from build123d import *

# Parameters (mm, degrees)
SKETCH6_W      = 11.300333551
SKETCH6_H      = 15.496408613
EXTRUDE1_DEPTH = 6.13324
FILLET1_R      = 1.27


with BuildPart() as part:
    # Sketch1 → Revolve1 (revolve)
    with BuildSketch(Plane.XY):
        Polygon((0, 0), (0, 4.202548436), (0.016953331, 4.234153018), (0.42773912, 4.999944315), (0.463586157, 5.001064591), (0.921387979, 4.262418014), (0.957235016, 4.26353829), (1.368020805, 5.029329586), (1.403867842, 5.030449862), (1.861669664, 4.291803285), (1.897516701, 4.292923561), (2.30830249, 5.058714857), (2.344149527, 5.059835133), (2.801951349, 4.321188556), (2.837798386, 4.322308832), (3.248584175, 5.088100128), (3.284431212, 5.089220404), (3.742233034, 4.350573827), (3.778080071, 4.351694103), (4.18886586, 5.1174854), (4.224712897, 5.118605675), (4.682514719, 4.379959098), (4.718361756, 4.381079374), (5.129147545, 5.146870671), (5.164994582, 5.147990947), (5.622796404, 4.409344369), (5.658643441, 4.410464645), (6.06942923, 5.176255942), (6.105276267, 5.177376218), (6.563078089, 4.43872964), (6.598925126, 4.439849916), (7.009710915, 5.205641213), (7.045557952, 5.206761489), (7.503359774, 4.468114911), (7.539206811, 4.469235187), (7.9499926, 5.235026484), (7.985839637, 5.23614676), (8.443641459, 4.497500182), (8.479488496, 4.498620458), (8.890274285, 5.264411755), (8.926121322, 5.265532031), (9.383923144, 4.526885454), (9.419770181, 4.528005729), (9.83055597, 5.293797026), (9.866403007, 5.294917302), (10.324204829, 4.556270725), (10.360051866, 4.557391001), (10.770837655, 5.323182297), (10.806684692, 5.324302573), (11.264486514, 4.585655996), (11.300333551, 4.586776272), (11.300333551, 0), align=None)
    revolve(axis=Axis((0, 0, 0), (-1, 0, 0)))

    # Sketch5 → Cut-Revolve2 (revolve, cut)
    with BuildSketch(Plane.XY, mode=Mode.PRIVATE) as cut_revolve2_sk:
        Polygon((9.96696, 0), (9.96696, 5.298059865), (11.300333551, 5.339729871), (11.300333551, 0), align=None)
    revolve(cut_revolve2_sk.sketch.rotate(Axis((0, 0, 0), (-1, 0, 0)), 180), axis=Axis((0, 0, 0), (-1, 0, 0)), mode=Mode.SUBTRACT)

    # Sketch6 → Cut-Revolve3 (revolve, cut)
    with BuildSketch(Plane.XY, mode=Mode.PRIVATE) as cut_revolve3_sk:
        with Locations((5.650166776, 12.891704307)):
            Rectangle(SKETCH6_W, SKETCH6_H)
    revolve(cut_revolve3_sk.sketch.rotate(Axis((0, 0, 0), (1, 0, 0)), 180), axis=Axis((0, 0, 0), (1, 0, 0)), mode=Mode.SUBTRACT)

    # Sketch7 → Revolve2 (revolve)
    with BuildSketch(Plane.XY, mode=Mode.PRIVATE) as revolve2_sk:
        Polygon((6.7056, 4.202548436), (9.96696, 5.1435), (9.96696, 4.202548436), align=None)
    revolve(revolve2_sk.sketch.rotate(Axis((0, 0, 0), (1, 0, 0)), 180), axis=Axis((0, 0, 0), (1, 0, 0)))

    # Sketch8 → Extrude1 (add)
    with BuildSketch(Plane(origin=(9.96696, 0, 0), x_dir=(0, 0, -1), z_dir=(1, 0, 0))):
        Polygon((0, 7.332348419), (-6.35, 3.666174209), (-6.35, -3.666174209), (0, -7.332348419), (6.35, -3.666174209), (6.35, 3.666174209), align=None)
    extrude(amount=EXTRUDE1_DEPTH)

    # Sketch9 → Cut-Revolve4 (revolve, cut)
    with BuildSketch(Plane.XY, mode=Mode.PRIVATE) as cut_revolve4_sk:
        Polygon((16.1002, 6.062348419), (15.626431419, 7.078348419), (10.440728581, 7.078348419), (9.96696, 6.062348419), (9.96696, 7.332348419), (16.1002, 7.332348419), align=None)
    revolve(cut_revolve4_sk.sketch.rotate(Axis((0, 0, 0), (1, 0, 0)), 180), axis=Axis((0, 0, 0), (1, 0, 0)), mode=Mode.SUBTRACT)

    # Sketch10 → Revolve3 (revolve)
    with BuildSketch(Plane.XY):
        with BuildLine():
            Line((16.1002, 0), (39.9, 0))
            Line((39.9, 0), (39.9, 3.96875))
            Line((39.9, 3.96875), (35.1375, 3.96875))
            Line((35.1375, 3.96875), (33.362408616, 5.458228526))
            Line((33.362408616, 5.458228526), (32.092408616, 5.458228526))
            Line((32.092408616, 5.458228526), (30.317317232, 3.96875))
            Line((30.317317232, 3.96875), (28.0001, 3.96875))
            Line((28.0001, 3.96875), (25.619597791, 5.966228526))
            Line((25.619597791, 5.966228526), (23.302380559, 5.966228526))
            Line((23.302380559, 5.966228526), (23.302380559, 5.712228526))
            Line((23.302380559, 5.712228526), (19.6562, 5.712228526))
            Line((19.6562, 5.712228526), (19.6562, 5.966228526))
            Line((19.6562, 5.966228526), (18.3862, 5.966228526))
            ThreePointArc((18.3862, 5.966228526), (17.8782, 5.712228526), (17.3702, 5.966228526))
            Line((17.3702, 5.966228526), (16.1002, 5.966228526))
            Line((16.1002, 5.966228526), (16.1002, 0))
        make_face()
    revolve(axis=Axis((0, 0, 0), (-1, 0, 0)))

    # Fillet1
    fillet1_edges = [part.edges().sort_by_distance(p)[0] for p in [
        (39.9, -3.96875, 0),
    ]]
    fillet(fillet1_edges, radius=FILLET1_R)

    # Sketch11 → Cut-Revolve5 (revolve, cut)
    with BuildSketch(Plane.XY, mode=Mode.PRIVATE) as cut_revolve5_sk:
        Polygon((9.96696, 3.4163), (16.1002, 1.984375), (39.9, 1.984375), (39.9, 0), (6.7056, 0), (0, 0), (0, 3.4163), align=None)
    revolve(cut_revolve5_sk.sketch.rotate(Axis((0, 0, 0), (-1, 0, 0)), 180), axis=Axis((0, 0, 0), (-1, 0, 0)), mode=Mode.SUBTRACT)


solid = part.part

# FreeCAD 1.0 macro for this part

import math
import FreeCAD as App
import Part
import Sketcher

V = App.Vector
Q = App.Units.Quantity


def edges_at(feature, points):
    """Names of the edges that pass closest to the given points."""
    edges = feature.Shape.Edges
    near = lambda p: min(range(len(edges)), key=lambda i: edges[i].distToShape(Part.Vertex(*p))[0])
    return sorted({f"Edge{near(p) + 1}" for p in points})


def add_polygon(sketch, points):
    """Adds a closed chain of lines whose ends are joined by coincident constraints."""
    first, n = sketch.GeometryCount, len(points)
    for a, b in zip(points, points[1:] + points[:1]):
        sketch.addGeometry(Part.LineSegment(App.Vector(*a, 0), App.Vector(*b, 0)), False)
    for i in range(n):
        sketch.addConstraint(Sketcher.Constraint("Coincident", first + i, 2, first + (i + 1) % n, 1))

doc = App.newDocument("Part")
body = doc.addObject("PartDesign::Body", "Body")

# Sketch on XY plane
sketch1 = body.newObject("Sketcher::SketchObject", "Sketch")
sketch1.AttachmentSupport = (doc.getObject("XY_Plane"), [""])
sketch1.MapMode = "FlatFace"
add_polygon(sketch1, [(0, 4.202548), (0, 0), (11.300334, 0), (11.300334, 4.586776), (11.264487, 4.585656), (10.806685, 5.324303), (10.770838, 5.323182), (10.360052, 4.557391), (10.324205, 4.556271), (9.866403, 5.294917), (9.830556, 5.293797), (9.41977, 4.528006), (9.383923, 4.526885), (8.926121, 5.265532), (8.890274, 5.264412), (8.479488, 4.49862), (8.443641, 4.4975), (7.98584, 5.236147), (7.949993, 5.235026), (7.539207, 4.469235), (7.50336, 4.468115), (7.045558, 5.206761), (7.009711, 5.205641), (6.598925, 4.43985), (6.563078, 4.43873), (6.105276, 5.177376), (6.069429, 5.176256), (5.658643, 4.410465), (5.622796, 4.409344), (5.164995, 5.147991), (5.129148, 5.146871), (4.718362, 4.381079), (4.682515, 4.379959), (4.224713, 5.118606), (4.188866, 5.117485), (3.77808, 4.351694), (3.742233, 4.350574), (3.284431, 5.08922), (3.248584, 5.0881), (2.837798, 4.322309), (2.801951, 4.321189), (2.34415, 5.059835), (2.308302, 5.058715), (1.897517, 4.292924), (1.86167, 4.291803), (1.403868, 5.03045), (1.368021, 5.02933), (0.957235, 4.263538), (0.921388, 4.262418), (0.463586, 5.001065), (0.427739, 4.999944), (0.016953, 4.234153)])  # lines 0-51
sketch1.addConstraint(Sketcher.Constraint("Vertical", 0))
sketch1.addConstraint(Sketcher.Constraint("Horizontal", 1))
sketch1.addConstraint(Sketcher.Constraint("Vertical", 2))
sketch1.addConstraint(Sketcher.Constraint("Coincident", 0, 2, -1, 1))
sketch1.addConstraint(Sketcher.Constraint("Parallel", 3, 5))
sketch1.addConstraint(Sketcher.Constraint("Parallel", 5, 7))
sketch1.addConstraint(Sketcher.Constraint("Parallel", 4, 8))
sketch1.addConstraint(Sketcher.Constraint("Parallel", 7, 9))
sketch1.addConstraint(Sketcher.Constraint("Parallel", 6, 10))
sketch1.addConstraint(Sketcher.Constraint("Parallel", 9, 11))
sketch1.addConstraint(Sketcher.Constraint("Parallel", 8, 12))
sketch1.addConstraint(Sketcher.Constraint("Parallel", 11, 13))
sketch1.addConstraint(Sketcher.Constraint("Parallel", 10, 14))
sketch1.addConstraint(Sketcher.Constraint("Parallel", 13, 15))
sketch1.addConstraint(Sketcher.Constraint("Parallel", 12, 16))
sketch1.addConstraint(Sketcher.Constraint("Parallel", 15, 17))
sketch1.addConstraint(Sketcher.Constraint("Parallel", 14, 18))
sketch1.addConstraint(Sketcher.Constraint("Parallel", 17, 19))
sketch1.addConstraint(Sketcher.Constraint("Parallel", 16, 20))
sketch1.addConstraint(Sketcher.Constraint("Parallel", 19, 21))
sketch1.addConstraint(Sketcher.Constraint("Parallel", 18, 22))
sketch1.addConstraint(Sketcher.Constraint("Parallel", 21, 23))
sketch1.addConstraint(Sketcher.Constraint("Parallel", 20, 24))
sketch1.addConstraint(Sketcher.Constraint("Parallel", 23, 25))
sketch1.addConstraint(Sketcher.Constraint("Parallel", 22, 26))
sketch1.addConstraint(Sketcher.Constraint("Parallel", 25, 27))
sketch1.addConstraint(Sketcher.Constraint("Parallel", 24, 28))
sketch1.addConstraint(Sketcher.Constraint("Parallel", 27, 29))
sketch1.addConstraint(Sketcher.Constraint("Parallel", 26, 30))
sketch1.addConstraint(Sketcher.Constraint("Parallel", 29, 31))
sketch1.addConstraint(Sketcher.Constraint("Parallel", 28, 32))
sketch1.addConstraint(Sketcher.Constraint("Parallel", 31, 33))
sketch1.addConstraint(Sketcher.Constraint("Parallel", 30, 34))
sketch1.addConstraint(Sketcher.Constraint("Parallel", 33, 35))
sketch1.addConstraint(Sketcher.Constraint("Parallel", 32, 36))
sketch1.addConstraint(Sketcher.Constraint("Parallel", 35, 37))
sketch1.addConstraint(Sketcher.Constraint("Parallel", 34, 38))
sketch1.addConstraint(Sketcher.Constraint("Parallel", 37, 39))
sketch1.addConstraint(Sketcher.Constraint("Parallel", 36, 40))
sketch1.addConstraint(Sketcher.Constraint("Parallel", 39, 41))
sketch1.addConstraint(Sketcher.Constraint("Parallel", 38, 42))
sketch1.addConstraint(Sketcher.Constraint("Parallel", 41, 43))
sketch1.addConstraint(Sketcher.Constraint("Parallel", 40, 44))
sketch1.addConstraint(Sketcher.Constraint("Parallel", 43, 45))
sketch1.addConstraint(Sketcher.Constraint("Parallel", 42, 46))
sketch1.addConstraint(Sketcher.Constraint("Parallel", 45, 47))
sketch1.addConstraint(Sketcher.Constraint("Parallel", 44, 48))
sketch1.addConstraint(Sketcher.Constraint("Parallel", 47, 49))
sketch1.addConstraint(Sketcher.Constraint("Parallel", 46, 50))
sketch1.addConstraint(Sketcher.Constraint("Parallel", 50, 51))
sketch1.addConstraint(Sketcher.Constraint("Equal", 3, 5))
sketch1.addConstraint(Sketcher.Constraint("Equal", 4, 6))
sketch1.addConstraint(Sketcher.Constraint("Equal", 5, 7))
sketch1.addConstraint(Sketcher.Constraint("Equal", 6, 8))
sketch1.addConstraint(Sketcher.Constraint("Equal", 7, 9))
sketch1.addConstraint(Sketcher.Constraint("Equal", 8, 10))
sketch1.addConstraint(Sketcher.Constraint("Equal", 9, 11))
sketch1.addConstraint(Sketcher.Constraint("Equal", 10, 12))
sketch1.addConstraint(Sketcher.Constraint("Equal", 11, 13))
sketch1.addConstraint(Sketcher.Constraint("Equal", 12, 14))
sketch1.addConstraint(Sketcher.Constraint("Equal", 13, 15))
sketch1.addConstraint(Sketcher.Constraint("Equal", 14, 16))
sketch1.addConstraint(Sketcher.Constraint("Equal", 15, 17))
sketch1.addConstraint(Sketcher.Constraint("Equal", 16, 18))
sketch1.addConstraint(Sketcher.Constraint("Equal", 17, 19))
sketch1.addConstraint(Sketcher.Constraint("Equal", 18, 20))
sketch1.addConstraint(Sketcher.Constraint("Equal", 19, 21))
sketch1.addConstraint(Sketcher.Constraint("Equal", 20, 22))
sketch1.addConstraint(Sketcher.Constraint("Equal", 21, 23))
sketch1.addConstraint(Sketcher.Constraint("Equal", 22, 24))
sketch1.addConstraint(Sketcher.Constraint("Equal", 23, 25))
sketch1.addConstraint(Sketcher.Constraint("Equal", 24, 26))
sketch1.addConstraint(Sketcher.Constraint("Equal", 25, 27))
sketch1.addConstraint(Sketcher.Constraint("Equal", 26, 28))
sketch1.addConstraint(Sketcher.Constraint("Equal", 27, 29))
sketch1.addConstraint(Sketcher.Constraint("Equal", 28, 30))
sketch1.addConstraint(Sketcher.Constraint("Equal", 29, 31))
sketch1.addConstraint(Sketcher.Constraint("Equal", 30, 32))
sketch1.addConstraint(Sketcher.Constraint("Equal", 31, 33))
sketch1.addConstraint(Sketcher.Constraint("Equal", 32, 34))
sketch1.addConstraint(Sketcher.Constraint("Equal", 33, 35))
sketch1.addConstraint(Sketcher.Constraint("Equal", 34, 36))
sketch1.addConstraint(Sketcher.Constraint("Equal", 35, 37))
sketch1.addConstraint(Sketcher.Constraint("Equal", 36, 38))
sketch1.addConstraint(Sketcher.Constraint("Equal", 37, 39))
sketch1.addConstraint(Sketcher.Constraint("Equal", 38, 40))
sketch1.addConstraint(Sketcher.Constraint("Equal", 39, 41))
sketch1.addConstraint(Sketcher.Constraint("Equal", 40, 42))
sketch1.addConstraint(Sketcher.Constraint("Equal", 41, 43))
sketch1.addConstraint(Sketcher.Constraint("Equal", 42, 44))
sketch1.addConstraint(Sketcher.Constraint("Equal", 43, 45))
sketch1.addConstraint(Sketcher.Constraint("Equal", 44, 46))
sketch1.addConstraint(Sketcher.Constraint("Equal", 45, 47))
sketch1.addConstraint(Sketcher.Constraint("Equal", 46, 48))
sketch1.addConstraint(Sketcher.Constraint("Equal", 47, 49))
sketch1.addConstraint(Sketcher.Constraint("Equal", 48, 50))
sketch1.addConstraint(Sketcher.Constraint("Equal", 49, 51))
sketch1.addConstraint(Sketcher.Constraint("Angle", 3, Q("-178.21 deg")))
sketch1.addConstraint(Sketcher.Constraint("Angle", 4, Q("121.79 deg")))
sketch1.addConstraint(Sketcher.Constraint("Angle", 6, Q("-118.21 deg")))
sketch1.addConstraint(Sketcher.Constraint("DistanceY", 0, 2, 0, 1, 4.202548))
sketch1.addConstraint(Sketcher.Constraint("DistanceY", -1, 1, 15, 2, 4.4975))
sketch1.addConstraint(Sketcher.Constraint("DistanceY", -1, 1, 37, 2, 5.0881))
revolution = body.newObject("PartDesign::Revolution", "Revolution")
revolution.Profile = sketch1
revolution.ReferenceAxis = (sketch1, ["H_Axis"])
revolution.Angle = 360

# Sketch on XY plane
sketch2 = body.newObject("Sketcher::SketchObject", "Sketch001")
sketch2.AttachmentSupport = (doc.getObject("XY_Plane"), [""])
sketch2.MapMode = "FlatFace"
add_polygon(sketch2, [(9.96696, 5.29806), (9.96696, 0), (11.300334, 0), (11.300334, 5.33973)])  # lines 0-3
sketch2.addConstraint(Sketcher.Constraint("Vertical", 0))
sketch2.addConstraint(Sketcher.Constraint("Horizontal", 1))
sketch2.addConstraint(Sketcher.Constraint("Vertical", 2))
sketch2.addConstraint(Sketcher.Constraint("PointOnObject", 0, 2, -1))
sketch2.addConstraint(Sketcher.Constraint("Angle", 3, Q("-178.21 deg")))
sketch2.addConstraint(Sketcher.Constraint("DistanceX", -1, 1, 0, 2, Q("0.3924 in")))
sketch2.addConstraint(Sketcher.Constraint("DistanceY", 0, 2, 0, 1, 5.29806))
sketch2.addConstraint(Sketcher.Constraint("DistanceY", 2, 1, 2, 2, 5.33973))
groove = body.newObject("PartDesign::Groove", "Groove")
groove.Profile = sketch2
groove.ReferenceAxis = (sketch2, ["H_Axis"])
groove.Angle = 360

# Sketch on XY plane
sketch3 = body.newObject("Sketcher::SketchObject", "Sketch002")
sketch3.AttachmentSupport = (doc.getObject("XY_Plane"), [""])
sketch3.MapMode = "FlatFace"
add_polygon(sketch3, [(0, 20.639909), (0, 5.1435), (11.300334, 5.1435), (11.300334, 20.639909)])  # lines 0-3
sketch3.addConstraint(Sketcher.Constraint("Vertical", 0))
sketch3.addConstraint(Sketcher.Constraint("Horizontal", 1))
sketch3.addConstraint(Sketcher.Constraint("Vertical", 2))
sketch3.addConstraint(Sketcher.Constraint("Horizontal", 3))
sketch3.addConstraint(Sketcher.Constraint("PointOnObject", 0, 2, -2))
sketch3.addConstraint(Sketcher.Constraint("DistanceY", -1, 1, 0, 2, Q("0.2025 in")))
sketch3.addConstraint(Sketcher.Constraint("DistanceY", 0, 2, 0, 1, 15.496409))
sketch3.addConstraint(Sketcher.Constraint("DistanceX", 1, 1, 1, 2, 11.300334))
groove2 = body.newObject("PartDesign::Groove", "Groove001")
groove2.Profile = sketch3
groove2.ReferenceAxis = (sketch3, ["H_Axis"])
groove2.Angle = 360

# Sketch on XY plane
sketch4 = body.newObject("Sketcher::SketchObject", "Sketch003")
sketch4.AttachmentSupport = (doc.getObject("XY_Plane"), [""])
sketch4.MapMode = "FlatFace"
add_polygon(sketch4, [(9.96696, 5.1435), (6.7056, 4.202548), (9.96696, 4.202548)])  # lines 0-2
sketch4.addConstraint(Sketcher.Constraint("Horizontal", 1))
sketch4.addConstraint(Sketcher.Constraint("Vertical", 2))
sketch4.addConstraint(Sketcher.Constraint("DistanceX", 1, 1, 1, 2, Q("0.1284 in")))
sketch4.addConstraint(Sketcher.Constraint("DistanceX", -1, 1, 0, 2, Q("0.264 in")))
sketch4.addConstraint(Sketcher.Constraint("DistanceY", -1, 1, 2, 2, Q("0.2025 in")))
sketch4.addConstraint(Sketcher.Constraint("DistanceY", 2, 1, 2, 2, 0.940952))
revolution2 = body.newObject("PartDesign::Revolution", "Revolution001")
revolution2.Profile = sketch4
revolution2.ReferenceAxis = (sketch4, ["H_Axis"])
revolution2.Angle = 360

# Sketch on YZ plane
sketch5 = body.newObject("Sketcher::SketchObject", "Sketch004")
sketch5.AttachmentSupport = (doc.getObject("YZ_Plane"), [""])
sketch5.MapMode = "FlatFace"
sketch5.AttachmentOffset = App.Placement(V(0, 0, 0.3924 * 25.4), App.Rotation())
add_polygon(sketch5, [(7.332348, 0), (3.666174, 6.35), (-3.666174, 6.35), (-7.332348, 0), (-3.666174, -6.35), (3.666174, -6.35)])  # lines 0-5
sketch5.addConstraint(Sketcher.Constraint("Horizontal", 1))
sketch5.addConstraint(Sketcher.Constraint("Horizontal", 4))
sketch5.addConstraint(Sketcher.Constraint("Symmetric", 0, 2, 3, 2, -1, 1))
sketch5.addConstraint(Sketcher.Constraint("Symmetric", 2, 2, 5, 2, -1, 1))
sketch5.addConstraint(Sketcher.Constraint("PointOnObject", 2, 2, -1))
sketch5.addConstraint(Sketcher.Constraint("Parallel", 2, 5))
sketch5.addConstraint(Sketcher.Constraint("Vertical", 1, 2, 3, 2))
sketch5.addConstraint(Sketcher.Constraint("Angle", 0, Q("120 deg")))
sketch5.addConstraint(Sketcher.Constraint("DistanceY", 3, 2, 1, 2, Q("0.5 in")))
sketch5.addConstraint(Sketcher.Constraint("DistanceX", 1, 2, 1, 1, 7.332348))
pad1 = body.newObject("PartDesign::Pad", "Pad")
pad1.Profile = sketch5
pad1.Length = 6.13324

# Sketch on XY plane
sketch6 = body.newObject("Sketcher::SketchObject", "Sketch005")
sketch6.AttachmentSupport = (doc.getObject("XY_Plane"), [""])
sketch6.MapMode = "FlatFace"
add_polygon(sketch6, [(15.626431, 7.078348), (16.1002, 6.062348), (16.1002, 7.332348), (9.96696, 7.332348), (9.96696, 6.062348), (10.440729, 7.078348)])  # lines 0-5
sketch6.addConstraint(Sketcher.Constraint("Vertical", 1))
sketch6.addConstraint(Sketcher.Constraint("Horizontal", 2))
sketch6.addConstraint(Sketcher.Constraint("Vertical", 3))
sketch6.addConstraint(Sketcher.Constraint("Horizontal", 5))
sketch6.addConstraint(Sketcher.Constraint("Horizontal", 0, 2, 3, 2))
sketch6.addConstraint(Sketcher.Constraint("Equal", 0, 4))
sketch6.addConstraint(Sketcher.Constraint("Angle", 0, Q("-65 deg")))
sketch6.addConstraint(Sketcher.Constraint("DistanceY", 1, 1, 1, 2, Q("0.05 in")))
sketch6.addConstraint(Sketcher.Constraint("DistanceY", 4, 2, 2, 2, Q("0.01 in")))
sketch6.addConstraint(Sketcher.Constraint("DistanceX", -1, 1, 2, 2, Q("0.3924 in")))
sketch6.addConstraint(Sketcher.Constraint("DistanceX", 2, 2, 2, 1, 6.13324))
sketch6.addConstraint(Sketcher.Constraint("DistanceY", -1, 1, 0, 2, 6.062348))
groove3 = body.newObject("PartDesign::Groove", "Groove002")
groove3.Profile = sketch6
groove3.ReferenceAxis = (sketch6, ["H_Axis"])
groove3.Angle = 360

# Sketch on XY plane
sketch7 = body.newObject("Sketcher::SketchObject", "Sketch006")
sketch7.AttachmentSupport = (doc.getObject("XY_Plane"), [""])
sketch7.MapMode = "FlatFace"
sketch7.addGeometry(Part.LineSegment(V(16.1002, 0, 0), V(39.9, 0, 0)), False)
sketch7.addGeometry(Part.LineSegment(V(39.9, 0, 0), V(39.9, 3.96875, 0)), False)
sketch7.addGeometry(Part.LineSegment(V(39.9, 3.96875, 0), V(35.1375, 3.96875, 0)), False)
sketch7.addGeometry(Part.LineSegment(V(35.1375, 3.96875, 0), V(33.362409, 5.458229, 0)), False)
sketch7.addGeometry(Part.LineSegment(V(33.362409, 5.458229, 0), V(32.092409, 5.458229, 0)), False)
sketch7.addGeometry(Part.LineSegment(V(32.092409, 5.458229, 0), V(30.317317, 3.96875, 0)), False)
sketch7.addGeometry(Part.LineSegment(V(30.317317, 3.96875, 0), V(28.0001, 3.96875, 0)), False)
sketch7.addGeometry(Part.LineSegment(V(28.0001, 3.96875, 0), V(25.619598, 5.966229, 0)), False)
sketch7.addGeometry(Part.LineSegment(V(25.619598, 5.966229, 0), V(23.302381, 5.966229, 0)), False)
sketch7.addGeometry(Part.LineSegment(V(23.302381, 5.966229, 0), V(23.302381, 5.712229, 0)), False)
sketch7.addGeometry(Part.LineSegment(V(23.302381, 5.712229, 0), V(19.6562, 5.712229, 0)), False)
sketch7.addGeometry(Part.LineSegment(V(19.6562, 5.712229, 0), V(19.6562, 5.966229, 0)), False)
sketch7.addGeometry(Part.LineSegment(V(19.6562, 5.966229, 0), V(18.3862, 5.966229, 0)), False)
sketch7.addGeometry(Part.ArcOfCircle(Part.Circle(V(17.8782, 6.347229, 0), V(0, 0, 1), 0.635), math.radians(-143.130102), math.radians(-36.869898)), False)
sketch7.addGeometry(Part.LineSegment(V(17.3702, 5.966229, 0), V(16.1002, 5.966229, 0)), False)
sketch7.addGeometry(Part.LineSegment(V(16.1002, 5.966229, 0), V(16.1002, 0, 0)), False)
sketch7.addConstraint(Sketcher.Constraint("Coincident", 0, 2, 1, 1))
sketch7.addConstraint(Sketcher.Constraint("Coincident", 1, 2, 2, 1))
sketch7.addConstraint(Sketcher.Constraint("Coincident", 2, 2, 3, 1))
sketch7.addConstraint(Sketcher.Constraint("Coincident", 3, 2, 4, 1))
sketch7.addConstraint(Sketcher.Constraint("Coincident", 4, 2, 5, 1))
sketch7.addConstraint(Sketcher.Constraint("Coincident", 5, 2, 6, 1))
sketch7.addConstraint(Sketcher.Constraint("Coincident", 6, 2, 7, 1))
sketch7.addConstraint(Sketcher.Constraint("Coincident", 7, 2, 8, 1))
sketch7.addConstraint(Sketcher.Constraint("Coincident", 8, 2, 9, 1))
sketch7.addConstraint(Sketcher.Constraint("Coincident", 9, 2, 10, 1))
sketch7.addConstraint(Sketcher.Constraint("Coincident", 10, 2, 11, 1))
sketch7.addConstraint(Sketcher.Constraint("Coincident", 11, 2, 12, 1))
sketch7.addConstraint(Sketcher.Constraint("Coincident", 12, 2, 13, 2))
sketch7.addConstraint(Sketcher.Constraint("Coincident", 13, 1, 14, 1))
sketch7.addConstraint(Sketcher.Constraint("Coincident", 14, 2, 15, 1))
sketch7.addConstraint(Sketcher.Constraint("Coincident", 15, 2, 0, 1))
sketch7.addConstraint(Sketcher.Constraint("Horizontal", 0))
sketch7.addConstraint(Sketcher.Constraint("Vertical", 1))
sketch7.addConstraint(Sketcher.Constraint("Horizontal", 2))
sketch7.addConstraint(Sketcher.Constraint("Horizontal", 4))
sketch7.addConstraint(Sketcher.Constraint("Horizontal", 6))
sketch7.addConstraint(Sketcher.Constraint("Horizontal", 8))
sketch7.addConstraint(Sketcher.Constraint("Vertical", 9))
sketch7.addConstraint(Sketcher.Constraint("Horizontal", 10))
sketch7.addConstraint(Sketcher.Constraint("Vertical", 11))
sketch7.addConstraint(Sketcher.Constraint("Horizontal", 12))
sketch7.addConstraint(Sketcher.Constraint("Horizontal", 14))
sketch7.addConstraint(Sketcher.Constraint("Vertical", 15))
sketch7.addConstraint(Sketcher.Constraint("PointOnObject", 0, 2, -1))
sketch7.addConstraint(Sketcher.Constraint("Parallel", 3, 7))
sketch7.addConstraint(Sketcher.Constraint("Horizontal", 2, 2, 5, 2))
sketch7.addConstraint(Sketcher.Constraint("Horizontal", 8, 2, 11, 2))
sketch7.addConstraint(Sketcher.Constraint("Horizontal", 12, 2, 13, 1))
sketch7.addConstraint(Sketcher.Constraint("Equal", 6, 8))
sketch7.addConstraint(Sketcher.Constraint("Equal", 4, 12))
sketch7.addConstraint(Sketcher.Constraint("Equal", 12, 14))
sketch7.addConstraint(Sketcher.Constraint("Equal", 3, 5))
sketch7.addConstraint(Sketcher.Constraint("Angle", 3, Q("140 deg")))
sketch7.addConstraint(Sketcher.Constraint("Radius", 13, Q("0.025 in")))
sketch7.addConstraint(Sketcher.Constraint("DistanceX", 4, 2, 4, 1, Q("0.05 in")))
sketch7.addConstraint(Sketcher.Constraint("DistanceY", 9, 2, 9, 1, Q("0.01 in")))
sketch7.addConstraint(Sketcher.Constraint("DistanceX", 0, 1, 0, 2, Q("0.937 in")))
sketch7.addConstraint(Sketcher.Constraint("DistanceX", 2, 2, 2, 1, Q("0.1875 in")))
sketch7.addConstraint(Sketcher.Constraint("DistanceY", 1, 1, 1, 2, Q("0.15625 in")))
sketch7.addConstraint(Sketcher.Constraint("DistanceY", 4, 2, 7, 2, Q("0.02 in")))
sketch7.addConstraint(Sketcher.Constraint("DistanceX", 13, 3, 10, 2, Q("0.07 in")))
sketch7.addConstraint(Sketcher.Constraint("DistanceX", 6, 2, 2, 2, Q("0.281 in")))
sketch7.addConstraint(Sketcher.Constraint("DistanceX", 10, 2, 10, 1, 3.646181))
sketch7.addConstraint(Sketcher.Constraint("DistanceX", -1, 1, 13, 3, 17.8782))
revolution3 = body.newObject("PartDesign::Revolution", "Revolution002")
revolution3.Profile = sketch7
revolution3.ReferenceAxis = (sketch7, ["H_Axis"])
revolution3.Angle = 360
doc.recompute()

fillet = body.newObject("PartDesign::Fillet", "Fillet")
fillet.Base = (revolution3, edges_at(revolution3, [(39.9, -3.969, 0)]))
fillet.Radius = Q("0.05 in")

# Sketch on XY plane
sketch8 = body.newObject("Sketcher::SketchObject", "Sketch007")
sketch8.AttachmentSupport = (doc.getObject("XY_Plane"), [""])
sketch8.MapMode = "FlatFace"
add_polygon(sketch8, [(16.1002, 1.984375), (9.96696, 3.4163), (0, 3.4163), (0, 0), (39.9, 0), (39.9, 1.984375)])  # lines 0-5
sketch8.addConstraint(Sketcher.Constraint("Horizontal", 1))
sketch8.addConstraint(Sketcher.Constraint("Vertical", 2))
sketch8.addConstraint(Sketcher.Constraint("Horizontal", 3))
sketch8.addConstraint(Sketcher.Constraint("Vertical", 4))
sketch8.addConstraint(Sketcher.Constraint("Horizontal", 5))
sketch8.addConstraint(Sketcher.Constraint("Coincident", 2, 2, -1, 1))
sketch8.addConstraint(Sketcher.Constraint("DistanceX", 5, 2, 5, 1, Q("0.937 in")))
sketch8.addConstraint(Sketcher.Constraint("DistanceY", 4, 1, 4, 2, Q("0.078125 in")))
sketch8.addConstraint(Sketcher.Constraint("DistanceX", 1, 2, 1, 1, Q("0.3924 in")))
sketch8.addConstraint(Sketcher.Constraint("DistanceY", 2, 2, 2, 1, Q("0.1345 in")))
sketch8.addConstraint(Sketcher.Constraint("DistanceX", 3, 1, 3, 2, 39.9))
groove4 = body.newObject("PartDesign::Groove", "Groove003")
groove4.Profile = sketch8
groove4.ReferenceAxis = (sketch8, ["H_Axis"])
groove4.Angle = 360

doc.recompute()
